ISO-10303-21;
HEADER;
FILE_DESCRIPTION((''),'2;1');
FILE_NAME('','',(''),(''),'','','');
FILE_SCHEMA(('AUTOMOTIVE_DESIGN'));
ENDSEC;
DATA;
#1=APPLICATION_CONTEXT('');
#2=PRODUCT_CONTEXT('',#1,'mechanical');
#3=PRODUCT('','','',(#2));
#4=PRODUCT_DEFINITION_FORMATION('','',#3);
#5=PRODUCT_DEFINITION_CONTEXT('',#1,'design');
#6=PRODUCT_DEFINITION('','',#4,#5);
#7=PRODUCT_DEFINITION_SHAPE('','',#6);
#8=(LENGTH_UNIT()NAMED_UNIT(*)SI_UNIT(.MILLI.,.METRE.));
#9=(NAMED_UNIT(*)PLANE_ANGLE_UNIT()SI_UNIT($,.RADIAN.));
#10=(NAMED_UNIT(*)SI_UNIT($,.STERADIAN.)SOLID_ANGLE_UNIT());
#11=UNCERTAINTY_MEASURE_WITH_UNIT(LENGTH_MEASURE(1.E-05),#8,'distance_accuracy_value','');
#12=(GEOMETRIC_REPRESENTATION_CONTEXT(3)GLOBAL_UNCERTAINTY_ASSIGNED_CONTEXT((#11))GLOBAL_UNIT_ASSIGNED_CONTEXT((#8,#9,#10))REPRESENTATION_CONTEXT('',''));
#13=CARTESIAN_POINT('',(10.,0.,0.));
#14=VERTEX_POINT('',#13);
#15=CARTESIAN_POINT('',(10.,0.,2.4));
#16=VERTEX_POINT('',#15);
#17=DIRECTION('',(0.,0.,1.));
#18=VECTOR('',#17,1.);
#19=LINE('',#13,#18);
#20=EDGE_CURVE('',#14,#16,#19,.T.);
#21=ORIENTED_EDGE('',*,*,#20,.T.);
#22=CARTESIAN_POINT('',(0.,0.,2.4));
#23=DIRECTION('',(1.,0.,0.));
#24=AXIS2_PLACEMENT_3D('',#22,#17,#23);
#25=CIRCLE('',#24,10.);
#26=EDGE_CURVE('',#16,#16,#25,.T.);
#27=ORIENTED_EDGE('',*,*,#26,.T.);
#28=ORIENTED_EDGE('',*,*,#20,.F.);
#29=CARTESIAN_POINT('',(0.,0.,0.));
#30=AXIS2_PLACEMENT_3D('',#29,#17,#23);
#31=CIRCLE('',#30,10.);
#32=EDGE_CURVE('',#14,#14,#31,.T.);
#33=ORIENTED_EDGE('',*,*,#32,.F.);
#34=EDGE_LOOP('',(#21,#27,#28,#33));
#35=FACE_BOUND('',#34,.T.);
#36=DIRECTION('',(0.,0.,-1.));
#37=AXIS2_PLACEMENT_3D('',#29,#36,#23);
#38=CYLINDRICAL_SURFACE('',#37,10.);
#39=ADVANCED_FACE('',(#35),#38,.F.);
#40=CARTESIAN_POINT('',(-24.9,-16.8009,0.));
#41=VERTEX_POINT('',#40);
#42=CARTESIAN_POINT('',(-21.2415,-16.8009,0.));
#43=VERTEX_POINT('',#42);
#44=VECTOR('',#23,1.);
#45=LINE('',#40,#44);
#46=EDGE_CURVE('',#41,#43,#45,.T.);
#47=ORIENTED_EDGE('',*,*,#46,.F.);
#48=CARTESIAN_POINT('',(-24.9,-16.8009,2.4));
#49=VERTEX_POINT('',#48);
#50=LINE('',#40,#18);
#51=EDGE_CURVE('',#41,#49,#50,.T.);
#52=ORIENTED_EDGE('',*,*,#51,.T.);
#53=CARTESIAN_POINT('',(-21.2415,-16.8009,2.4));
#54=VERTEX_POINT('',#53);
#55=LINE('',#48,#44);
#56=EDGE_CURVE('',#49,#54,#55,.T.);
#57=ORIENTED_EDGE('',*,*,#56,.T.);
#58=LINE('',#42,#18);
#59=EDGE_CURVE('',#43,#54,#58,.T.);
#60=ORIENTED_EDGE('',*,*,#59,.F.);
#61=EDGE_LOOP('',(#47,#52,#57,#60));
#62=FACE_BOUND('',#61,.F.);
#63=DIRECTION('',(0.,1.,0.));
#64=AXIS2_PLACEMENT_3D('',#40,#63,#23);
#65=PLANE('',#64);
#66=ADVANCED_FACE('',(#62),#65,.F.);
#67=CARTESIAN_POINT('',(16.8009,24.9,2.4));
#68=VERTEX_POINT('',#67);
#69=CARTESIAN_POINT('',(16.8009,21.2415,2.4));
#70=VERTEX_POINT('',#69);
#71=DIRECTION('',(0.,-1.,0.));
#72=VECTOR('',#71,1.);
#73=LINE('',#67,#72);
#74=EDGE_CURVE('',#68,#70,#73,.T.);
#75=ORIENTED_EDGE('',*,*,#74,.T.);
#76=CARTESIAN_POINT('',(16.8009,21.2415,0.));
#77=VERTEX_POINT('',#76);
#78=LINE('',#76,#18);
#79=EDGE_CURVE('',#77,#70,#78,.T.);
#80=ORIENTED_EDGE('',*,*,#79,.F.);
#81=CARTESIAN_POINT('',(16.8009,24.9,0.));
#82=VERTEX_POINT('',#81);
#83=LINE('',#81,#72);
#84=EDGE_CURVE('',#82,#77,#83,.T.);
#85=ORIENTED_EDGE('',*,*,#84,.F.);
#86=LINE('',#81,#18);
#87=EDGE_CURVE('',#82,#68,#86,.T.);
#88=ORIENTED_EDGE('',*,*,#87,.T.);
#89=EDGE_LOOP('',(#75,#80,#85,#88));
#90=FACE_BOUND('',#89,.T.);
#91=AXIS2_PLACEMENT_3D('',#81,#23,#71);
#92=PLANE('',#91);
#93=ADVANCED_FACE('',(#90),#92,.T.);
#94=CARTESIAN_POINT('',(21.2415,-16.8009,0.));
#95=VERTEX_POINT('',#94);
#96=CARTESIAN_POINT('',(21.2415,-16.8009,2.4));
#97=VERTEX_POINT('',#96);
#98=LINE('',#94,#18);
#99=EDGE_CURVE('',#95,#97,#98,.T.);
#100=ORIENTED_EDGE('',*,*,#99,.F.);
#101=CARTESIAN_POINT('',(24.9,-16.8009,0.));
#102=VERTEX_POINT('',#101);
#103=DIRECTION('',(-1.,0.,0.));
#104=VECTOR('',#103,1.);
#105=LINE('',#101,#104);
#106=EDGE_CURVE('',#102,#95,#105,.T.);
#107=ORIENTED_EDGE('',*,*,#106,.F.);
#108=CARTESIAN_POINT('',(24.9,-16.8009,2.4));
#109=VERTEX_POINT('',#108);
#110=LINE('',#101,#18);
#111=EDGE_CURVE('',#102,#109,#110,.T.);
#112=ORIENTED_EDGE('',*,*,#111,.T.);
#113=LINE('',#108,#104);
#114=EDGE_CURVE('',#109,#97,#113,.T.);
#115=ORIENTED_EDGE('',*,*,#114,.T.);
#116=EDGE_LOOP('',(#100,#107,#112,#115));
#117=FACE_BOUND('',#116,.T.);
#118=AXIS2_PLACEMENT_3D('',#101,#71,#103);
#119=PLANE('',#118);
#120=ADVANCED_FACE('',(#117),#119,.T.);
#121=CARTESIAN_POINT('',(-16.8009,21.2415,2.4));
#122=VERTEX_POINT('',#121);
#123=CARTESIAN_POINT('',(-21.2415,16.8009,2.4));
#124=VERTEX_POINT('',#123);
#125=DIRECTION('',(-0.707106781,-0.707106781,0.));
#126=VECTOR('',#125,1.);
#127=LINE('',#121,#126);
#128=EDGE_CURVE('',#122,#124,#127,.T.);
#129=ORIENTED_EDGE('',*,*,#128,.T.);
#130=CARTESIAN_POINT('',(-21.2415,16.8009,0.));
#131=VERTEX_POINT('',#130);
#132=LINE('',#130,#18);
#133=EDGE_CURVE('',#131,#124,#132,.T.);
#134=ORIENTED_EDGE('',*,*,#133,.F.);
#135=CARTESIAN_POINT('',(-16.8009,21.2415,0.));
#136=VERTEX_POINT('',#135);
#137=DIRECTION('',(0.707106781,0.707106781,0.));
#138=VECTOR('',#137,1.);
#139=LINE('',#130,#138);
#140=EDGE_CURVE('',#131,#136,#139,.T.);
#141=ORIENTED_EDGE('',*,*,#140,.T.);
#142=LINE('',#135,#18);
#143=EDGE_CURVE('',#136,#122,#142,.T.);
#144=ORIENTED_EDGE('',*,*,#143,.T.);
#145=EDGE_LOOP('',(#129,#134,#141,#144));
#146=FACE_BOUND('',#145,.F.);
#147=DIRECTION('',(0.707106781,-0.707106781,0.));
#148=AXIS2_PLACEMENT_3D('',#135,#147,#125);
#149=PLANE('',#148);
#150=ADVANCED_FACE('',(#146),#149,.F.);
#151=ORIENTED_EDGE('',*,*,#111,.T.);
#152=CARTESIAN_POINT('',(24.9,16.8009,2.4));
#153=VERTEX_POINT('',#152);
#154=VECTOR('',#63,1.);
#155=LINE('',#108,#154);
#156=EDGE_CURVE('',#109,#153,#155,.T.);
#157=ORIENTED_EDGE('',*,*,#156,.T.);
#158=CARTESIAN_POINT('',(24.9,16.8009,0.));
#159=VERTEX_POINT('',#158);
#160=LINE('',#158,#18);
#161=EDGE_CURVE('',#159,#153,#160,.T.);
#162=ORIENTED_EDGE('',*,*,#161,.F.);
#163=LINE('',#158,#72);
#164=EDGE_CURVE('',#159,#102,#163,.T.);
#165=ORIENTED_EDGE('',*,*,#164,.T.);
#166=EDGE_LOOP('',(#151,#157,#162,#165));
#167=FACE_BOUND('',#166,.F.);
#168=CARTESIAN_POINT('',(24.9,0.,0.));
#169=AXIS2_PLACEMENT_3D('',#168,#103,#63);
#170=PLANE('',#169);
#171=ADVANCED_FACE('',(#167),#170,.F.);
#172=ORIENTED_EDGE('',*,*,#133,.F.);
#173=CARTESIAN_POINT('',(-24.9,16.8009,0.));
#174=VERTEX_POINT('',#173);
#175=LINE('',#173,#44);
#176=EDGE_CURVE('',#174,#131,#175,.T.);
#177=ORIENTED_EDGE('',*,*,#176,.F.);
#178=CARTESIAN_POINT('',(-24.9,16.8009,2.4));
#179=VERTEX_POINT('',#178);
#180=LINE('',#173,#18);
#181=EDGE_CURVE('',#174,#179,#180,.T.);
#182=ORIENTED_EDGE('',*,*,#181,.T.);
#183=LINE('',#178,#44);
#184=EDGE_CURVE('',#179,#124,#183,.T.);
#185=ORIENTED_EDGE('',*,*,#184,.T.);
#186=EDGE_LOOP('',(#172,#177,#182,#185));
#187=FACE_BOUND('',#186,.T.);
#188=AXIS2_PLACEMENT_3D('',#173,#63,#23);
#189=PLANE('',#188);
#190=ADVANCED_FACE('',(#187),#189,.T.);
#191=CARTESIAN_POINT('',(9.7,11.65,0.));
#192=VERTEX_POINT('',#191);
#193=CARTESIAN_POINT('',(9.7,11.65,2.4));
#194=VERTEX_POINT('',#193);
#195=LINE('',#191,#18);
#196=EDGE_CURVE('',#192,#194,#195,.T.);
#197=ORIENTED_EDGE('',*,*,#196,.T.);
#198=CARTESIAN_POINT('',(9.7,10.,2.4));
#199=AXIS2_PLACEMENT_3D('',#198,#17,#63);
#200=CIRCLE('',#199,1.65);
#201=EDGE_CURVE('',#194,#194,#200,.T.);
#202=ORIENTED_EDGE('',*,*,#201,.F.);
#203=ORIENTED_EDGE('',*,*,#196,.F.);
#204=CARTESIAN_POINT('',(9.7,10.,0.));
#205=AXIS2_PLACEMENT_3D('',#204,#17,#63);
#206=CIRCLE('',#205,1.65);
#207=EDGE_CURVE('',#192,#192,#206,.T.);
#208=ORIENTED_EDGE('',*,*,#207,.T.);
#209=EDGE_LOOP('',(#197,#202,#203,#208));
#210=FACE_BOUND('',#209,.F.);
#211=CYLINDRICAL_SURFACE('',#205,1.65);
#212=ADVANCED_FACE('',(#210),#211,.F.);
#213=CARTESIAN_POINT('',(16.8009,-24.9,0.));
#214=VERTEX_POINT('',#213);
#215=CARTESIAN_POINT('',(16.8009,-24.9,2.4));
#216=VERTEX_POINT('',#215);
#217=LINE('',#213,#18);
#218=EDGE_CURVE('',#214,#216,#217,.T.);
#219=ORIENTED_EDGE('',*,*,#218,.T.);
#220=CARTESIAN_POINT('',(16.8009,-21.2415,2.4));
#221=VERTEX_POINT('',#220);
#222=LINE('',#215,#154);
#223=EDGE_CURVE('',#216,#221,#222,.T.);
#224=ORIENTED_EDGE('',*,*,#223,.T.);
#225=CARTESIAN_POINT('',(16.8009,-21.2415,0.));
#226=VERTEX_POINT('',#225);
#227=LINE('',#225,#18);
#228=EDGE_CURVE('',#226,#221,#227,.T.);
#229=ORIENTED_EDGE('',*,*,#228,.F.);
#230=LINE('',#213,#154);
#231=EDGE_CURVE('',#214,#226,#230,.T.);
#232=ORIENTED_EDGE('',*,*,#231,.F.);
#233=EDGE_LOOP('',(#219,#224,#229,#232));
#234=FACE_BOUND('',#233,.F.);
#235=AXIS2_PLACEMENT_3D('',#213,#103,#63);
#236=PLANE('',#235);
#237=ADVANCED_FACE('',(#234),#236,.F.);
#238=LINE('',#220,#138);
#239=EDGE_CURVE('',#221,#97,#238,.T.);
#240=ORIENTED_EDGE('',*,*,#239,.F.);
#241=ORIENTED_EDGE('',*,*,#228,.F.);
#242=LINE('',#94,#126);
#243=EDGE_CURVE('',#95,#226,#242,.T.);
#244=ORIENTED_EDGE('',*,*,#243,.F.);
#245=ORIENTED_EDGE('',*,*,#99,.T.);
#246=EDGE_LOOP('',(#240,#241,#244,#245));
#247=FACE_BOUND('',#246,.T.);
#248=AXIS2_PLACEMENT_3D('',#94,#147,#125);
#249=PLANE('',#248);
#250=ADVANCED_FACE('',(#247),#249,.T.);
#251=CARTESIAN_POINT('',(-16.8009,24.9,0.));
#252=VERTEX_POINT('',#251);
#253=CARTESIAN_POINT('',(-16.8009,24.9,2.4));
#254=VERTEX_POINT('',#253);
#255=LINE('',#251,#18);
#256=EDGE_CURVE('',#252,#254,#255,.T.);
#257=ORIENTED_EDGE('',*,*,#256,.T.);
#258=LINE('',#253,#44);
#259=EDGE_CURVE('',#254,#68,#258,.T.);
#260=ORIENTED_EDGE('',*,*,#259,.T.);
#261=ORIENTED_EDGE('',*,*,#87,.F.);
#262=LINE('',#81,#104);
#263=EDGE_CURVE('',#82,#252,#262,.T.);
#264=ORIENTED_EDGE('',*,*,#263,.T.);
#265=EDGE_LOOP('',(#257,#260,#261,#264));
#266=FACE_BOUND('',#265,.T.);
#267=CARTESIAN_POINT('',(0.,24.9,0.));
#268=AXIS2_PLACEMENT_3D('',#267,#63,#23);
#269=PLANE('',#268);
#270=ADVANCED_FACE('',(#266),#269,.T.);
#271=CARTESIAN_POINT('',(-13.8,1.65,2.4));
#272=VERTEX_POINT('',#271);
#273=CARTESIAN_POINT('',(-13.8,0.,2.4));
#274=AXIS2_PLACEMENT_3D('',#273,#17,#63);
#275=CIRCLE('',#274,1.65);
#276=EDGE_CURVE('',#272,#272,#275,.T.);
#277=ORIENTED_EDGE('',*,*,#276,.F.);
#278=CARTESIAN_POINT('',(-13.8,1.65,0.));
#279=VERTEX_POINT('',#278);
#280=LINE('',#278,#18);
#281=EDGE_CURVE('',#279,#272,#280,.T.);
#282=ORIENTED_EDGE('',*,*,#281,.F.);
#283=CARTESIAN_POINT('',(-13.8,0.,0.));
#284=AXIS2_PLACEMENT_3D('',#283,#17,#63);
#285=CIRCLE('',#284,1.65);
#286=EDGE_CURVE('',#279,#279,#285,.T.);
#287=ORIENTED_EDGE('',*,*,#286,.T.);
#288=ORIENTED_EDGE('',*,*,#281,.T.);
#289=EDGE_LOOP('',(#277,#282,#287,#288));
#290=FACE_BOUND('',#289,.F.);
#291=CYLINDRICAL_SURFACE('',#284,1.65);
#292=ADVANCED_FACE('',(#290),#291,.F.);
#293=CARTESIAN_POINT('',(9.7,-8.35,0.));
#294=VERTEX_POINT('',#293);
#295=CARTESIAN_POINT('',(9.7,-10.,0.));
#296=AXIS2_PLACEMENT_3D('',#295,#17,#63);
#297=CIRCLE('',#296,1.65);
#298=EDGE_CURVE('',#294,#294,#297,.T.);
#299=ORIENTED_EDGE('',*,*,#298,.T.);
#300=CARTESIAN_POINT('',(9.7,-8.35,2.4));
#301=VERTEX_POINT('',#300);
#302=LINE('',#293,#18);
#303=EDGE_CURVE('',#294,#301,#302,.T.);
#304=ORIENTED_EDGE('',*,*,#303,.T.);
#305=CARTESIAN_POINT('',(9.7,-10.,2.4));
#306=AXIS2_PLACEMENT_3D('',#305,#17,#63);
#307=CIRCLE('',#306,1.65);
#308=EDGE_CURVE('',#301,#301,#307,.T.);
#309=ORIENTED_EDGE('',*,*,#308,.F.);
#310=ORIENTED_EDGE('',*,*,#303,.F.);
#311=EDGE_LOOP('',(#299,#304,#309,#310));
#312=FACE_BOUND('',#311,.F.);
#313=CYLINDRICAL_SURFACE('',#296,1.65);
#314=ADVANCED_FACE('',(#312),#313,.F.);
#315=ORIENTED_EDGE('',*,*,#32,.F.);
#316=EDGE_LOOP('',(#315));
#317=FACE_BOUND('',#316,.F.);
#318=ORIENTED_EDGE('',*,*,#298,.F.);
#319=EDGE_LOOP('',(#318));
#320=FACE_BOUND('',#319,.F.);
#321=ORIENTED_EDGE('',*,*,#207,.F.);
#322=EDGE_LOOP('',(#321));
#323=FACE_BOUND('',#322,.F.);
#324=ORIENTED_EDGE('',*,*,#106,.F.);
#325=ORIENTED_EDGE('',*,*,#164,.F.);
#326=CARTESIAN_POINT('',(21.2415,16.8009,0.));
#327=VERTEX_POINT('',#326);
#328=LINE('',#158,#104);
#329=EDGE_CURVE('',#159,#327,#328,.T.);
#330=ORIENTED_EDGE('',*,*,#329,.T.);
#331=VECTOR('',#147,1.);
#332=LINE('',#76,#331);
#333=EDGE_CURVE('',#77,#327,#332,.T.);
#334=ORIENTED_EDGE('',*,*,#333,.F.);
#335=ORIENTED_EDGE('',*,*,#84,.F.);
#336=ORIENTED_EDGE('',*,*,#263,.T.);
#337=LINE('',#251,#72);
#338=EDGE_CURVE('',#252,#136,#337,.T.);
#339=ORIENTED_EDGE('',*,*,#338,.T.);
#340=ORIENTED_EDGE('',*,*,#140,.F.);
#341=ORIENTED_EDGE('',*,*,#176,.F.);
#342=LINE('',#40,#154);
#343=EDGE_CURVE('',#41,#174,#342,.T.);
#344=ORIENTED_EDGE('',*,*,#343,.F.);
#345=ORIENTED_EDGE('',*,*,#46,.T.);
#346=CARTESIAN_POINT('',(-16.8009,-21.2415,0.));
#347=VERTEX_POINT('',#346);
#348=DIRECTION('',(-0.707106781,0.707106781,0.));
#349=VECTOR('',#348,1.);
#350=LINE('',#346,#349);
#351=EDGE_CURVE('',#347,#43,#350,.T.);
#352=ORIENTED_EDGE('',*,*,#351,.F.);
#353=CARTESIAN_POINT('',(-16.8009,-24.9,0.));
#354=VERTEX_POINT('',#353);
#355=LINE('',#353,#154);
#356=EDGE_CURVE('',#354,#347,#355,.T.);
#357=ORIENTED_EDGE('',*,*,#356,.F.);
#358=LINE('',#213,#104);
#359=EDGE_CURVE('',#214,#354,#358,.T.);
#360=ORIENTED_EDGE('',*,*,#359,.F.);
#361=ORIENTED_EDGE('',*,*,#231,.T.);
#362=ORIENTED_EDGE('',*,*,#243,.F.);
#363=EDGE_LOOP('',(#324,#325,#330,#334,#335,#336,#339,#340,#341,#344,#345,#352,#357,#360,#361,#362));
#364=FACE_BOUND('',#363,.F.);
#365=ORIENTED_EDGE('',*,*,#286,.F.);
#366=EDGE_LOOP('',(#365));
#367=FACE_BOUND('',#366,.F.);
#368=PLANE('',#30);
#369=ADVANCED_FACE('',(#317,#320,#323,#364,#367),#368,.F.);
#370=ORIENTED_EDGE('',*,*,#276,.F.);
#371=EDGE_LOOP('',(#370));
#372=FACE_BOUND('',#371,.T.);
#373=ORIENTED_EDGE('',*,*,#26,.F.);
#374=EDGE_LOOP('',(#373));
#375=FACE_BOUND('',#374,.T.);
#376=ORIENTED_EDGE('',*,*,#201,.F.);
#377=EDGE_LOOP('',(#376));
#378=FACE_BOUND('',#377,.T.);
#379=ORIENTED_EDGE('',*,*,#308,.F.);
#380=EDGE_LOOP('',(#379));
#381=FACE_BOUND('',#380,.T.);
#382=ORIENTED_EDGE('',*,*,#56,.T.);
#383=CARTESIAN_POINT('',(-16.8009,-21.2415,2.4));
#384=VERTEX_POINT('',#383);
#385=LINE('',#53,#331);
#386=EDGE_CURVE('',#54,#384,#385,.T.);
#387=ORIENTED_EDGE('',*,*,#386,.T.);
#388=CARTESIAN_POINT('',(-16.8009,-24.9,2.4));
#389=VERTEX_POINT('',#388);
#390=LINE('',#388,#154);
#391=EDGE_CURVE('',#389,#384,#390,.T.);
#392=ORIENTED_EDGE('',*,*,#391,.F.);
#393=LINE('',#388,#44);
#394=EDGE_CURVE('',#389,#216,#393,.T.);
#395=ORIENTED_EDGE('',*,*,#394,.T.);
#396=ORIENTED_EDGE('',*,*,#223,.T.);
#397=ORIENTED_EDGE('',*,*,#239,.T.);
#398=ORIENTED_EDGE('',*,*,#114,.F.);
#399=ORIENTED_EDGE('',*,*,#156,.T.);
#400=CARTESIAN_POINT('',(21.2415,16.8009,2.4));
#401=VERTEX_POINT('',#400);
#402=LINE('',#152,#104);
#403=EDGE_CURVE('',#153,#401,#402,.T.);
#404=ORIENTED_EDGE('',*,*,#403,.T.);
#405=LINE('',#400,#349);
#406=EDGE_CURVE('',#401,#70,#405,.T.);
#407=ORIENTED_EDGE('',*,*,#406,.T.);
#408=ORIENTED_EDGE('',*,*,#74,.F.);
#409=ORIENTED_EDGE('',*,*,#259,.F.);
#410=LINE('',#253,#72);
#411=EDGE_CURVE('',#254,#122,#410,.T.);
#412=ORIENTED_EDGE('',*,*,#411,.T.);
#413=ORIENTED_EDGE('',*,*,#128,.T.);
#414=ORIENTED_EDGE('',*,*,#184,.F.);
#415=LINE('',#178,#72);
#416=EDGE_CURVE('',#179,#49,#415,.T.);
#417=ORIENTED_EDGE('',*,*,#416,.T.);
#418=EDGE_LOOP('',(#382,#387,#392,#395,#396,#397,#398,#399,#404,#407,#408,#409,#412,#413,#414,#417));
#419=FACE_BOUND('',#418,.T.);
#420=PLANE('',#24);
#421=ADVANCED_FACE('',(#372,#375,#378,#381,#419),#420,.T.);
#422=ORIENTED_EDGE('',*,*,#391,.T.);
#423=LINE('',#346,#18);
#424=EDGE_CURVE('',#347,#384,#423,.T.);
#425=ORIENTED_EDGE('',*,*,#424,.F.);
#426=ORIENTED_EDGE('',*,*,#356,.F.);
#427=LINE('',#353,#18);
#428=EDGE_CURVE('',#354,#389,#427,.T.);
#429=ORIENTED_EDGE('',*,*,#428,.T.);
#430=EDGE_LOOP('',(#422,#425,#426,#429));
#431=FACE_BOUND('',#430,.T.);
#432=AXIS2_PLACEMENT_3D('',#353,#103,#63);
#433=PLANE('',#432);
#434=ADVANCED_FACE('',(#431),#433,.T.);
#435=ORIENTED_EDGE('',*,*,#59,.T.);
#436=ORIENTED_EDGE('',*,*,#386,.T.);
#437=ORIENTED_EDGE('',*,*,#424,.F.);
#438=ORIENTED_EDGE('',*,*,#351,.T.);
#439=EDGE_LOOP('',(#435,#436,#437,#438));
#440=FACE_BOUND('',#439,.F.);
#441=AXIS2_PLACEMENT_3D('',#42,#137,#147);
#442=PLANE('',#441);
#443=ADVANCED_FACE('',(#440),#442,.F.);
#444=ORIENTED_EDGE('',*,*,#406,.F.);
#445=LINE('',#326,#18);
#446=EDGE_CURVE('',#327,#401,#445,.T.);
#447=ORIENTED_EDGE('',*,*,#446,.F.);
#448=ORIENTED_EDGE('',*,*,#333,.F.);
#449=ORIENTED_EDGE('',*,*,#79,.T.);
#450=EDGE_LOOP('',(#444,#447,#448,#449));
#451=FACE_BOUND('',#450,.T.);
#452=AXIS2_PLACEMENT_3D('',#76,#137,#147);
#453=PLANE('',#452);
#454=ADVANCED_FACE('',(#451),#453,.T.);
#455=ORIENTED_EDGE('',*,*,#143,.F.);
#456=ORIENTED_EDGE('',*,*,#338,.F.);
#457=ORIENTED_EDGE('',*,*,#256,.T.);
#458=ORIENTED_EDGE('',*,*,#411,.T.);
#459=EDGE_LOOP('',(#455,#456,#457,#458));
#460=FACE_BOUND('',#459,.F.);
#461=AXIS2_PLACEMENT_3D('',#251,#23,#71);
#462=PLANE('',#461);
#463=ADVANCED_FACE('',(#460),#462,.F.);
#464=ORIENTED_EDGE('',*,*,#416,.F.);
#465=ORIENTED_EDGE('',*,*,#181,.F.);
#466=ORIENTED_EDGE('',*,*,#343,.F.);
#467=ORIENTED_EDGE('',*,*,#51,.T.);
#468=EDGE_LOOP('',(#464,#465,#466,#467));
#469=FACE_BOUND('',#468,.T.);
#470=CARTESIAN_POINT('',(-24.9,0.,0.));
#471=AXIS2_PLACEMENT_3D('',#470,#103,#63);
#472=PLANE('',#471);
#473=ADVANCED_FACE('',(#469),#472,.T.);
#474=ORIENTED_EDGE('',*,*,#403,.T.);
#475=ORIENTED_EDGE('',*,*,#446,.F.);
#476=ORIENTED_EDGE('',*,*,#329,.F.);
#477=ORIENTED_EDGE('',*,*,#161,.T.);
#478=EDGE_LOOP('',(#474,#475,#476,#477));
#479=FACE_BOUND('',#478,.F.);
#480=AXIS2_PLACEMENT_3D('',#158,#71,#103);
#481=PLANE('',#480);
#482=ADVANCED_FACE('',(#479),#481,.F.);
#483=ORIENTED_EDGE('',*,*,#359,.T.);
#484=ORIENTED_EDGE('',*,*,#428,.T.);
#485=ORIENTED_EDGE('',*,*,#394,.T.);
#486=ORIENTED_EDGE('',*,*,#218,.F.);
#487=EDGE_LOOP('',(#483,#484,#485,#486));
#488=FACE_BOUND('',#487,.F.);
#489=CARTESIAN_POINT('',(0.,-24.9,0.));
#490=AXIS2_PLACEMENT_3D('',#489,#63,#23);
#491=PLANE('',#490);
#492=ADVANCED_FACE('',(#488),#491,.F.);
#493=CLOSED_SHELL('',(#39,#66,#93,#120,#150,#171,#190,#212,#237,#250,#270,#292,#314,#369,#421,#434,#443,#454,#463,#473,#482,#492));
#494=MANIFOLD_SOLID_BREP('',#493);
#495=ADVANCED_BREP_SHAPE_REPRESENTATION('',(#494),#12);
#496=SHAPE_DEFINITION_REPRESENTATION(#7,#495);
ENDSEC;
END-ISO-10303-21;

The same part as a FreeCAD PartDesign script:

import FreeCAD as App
import Part
import Sketcher


def add_polygon(sketch, points):
    """Adds a closed chain of lines whose ends are joined by coincident constraints."""
    first, n = sketch.GeometryCount, len(points)
    for a, b in zip(points, points[1:] + points[:1]):
        sketch.addGeometry(Part.LineSegment(App.Vector(*a, 0), App.Vector(*b, 0)), False)
    for i in range(n):
        sketch.addConstraint(Sketcher.Constraint("Coincident", first + i, 2, first + (i + 1) % n, 1))

doc = App.newDocument("Part")
body = doc.addObject("PartDesign::Body", "Body")

# Sketch on XY plane
sketch1 = doc.addObject("Sketcher::SketchObject", "Sketch")
body.addObject(sketch1)
sketch1.AttachmentSupport = (doc.XY_Plane, [""])
sketch1.MapMode = "FlatFace"
add_polygon(sketch1, [(16.8, 24.9), (-16.8, 24.9), (-16.8, 21.2), (-21.2, 16.8), (-24.9, 16.8), (-24.9, -16.8), (-21.2, -16.8), (-16.8, -21.2), (-16.8, -24.9), (16.8, -24.9), (16.8, -21.2), (21.2, -16.8), (24.9, -16.8), (24.9, 16.8), (21.2, 16.8), (16.8, 21.2)])  # lines 0-15
sketch1.addGeometry(Part.Circle(App.Vector(0, 0, 0), App.Vector(0, 0, 1), 10), False)  # 16
sketch1.addConstraint([
    Sketcher.Constraint("Horizontal", 0),
    Sketcher.Constraint("Vertical", 1),
    Sketcher.Constraint("Horizontal", 3),
    Sketcher.Constraint("Vertical", 4),
    Sketcher.Constraint("Horizontal", 5),
    Sketcher.Constraint("Vertical", 7),
    Sketcher.Constraint("Horizontal", 8),
    Sketcher.Constraint("Vertical", 9),
    Sketcher.Constraint("Horizontal", 11),
    Sketcher.Constraint("Vertical", 12),
    Sketcher.Constraint("Horizontal", 13),
    Sketcher.Constraint("Vertical", 15),
    Sketcher.Constraint("Coincident", 16, 3, -1, 1),
    Sketcher.Constraint("Symmetric", 0, 2, 8, 2, -1, 1),
    Sketcher.Constraint("Symmetric", 2, 2, 10, 2, -1, 1),
    Sketcher.Constraint("Symmetric", 4, 2, 12, 2, -1, 1),
    Sketcher.Constraint("Symmetric", 6, 2, 14, 2, -1, 1),
    Sketcher.Constraint("Symmetric", 6, 2, 9, 2, -2),
    Sketcher.Constraint("Symmetric", 5, 2, 10, 2, -2),
    Sketcher.Constraint("Perpendicular", 2, 6),
    Sketcher.Constraint("Perpendicular", 6, 10),
    Sketcher.Constraint("Perpendicular", 10, 14),
    Sketcher.Constraint("Equal", 13, 1),
    Sketcher.Constraint("Equal", 8, 4),
    Sketcher.Constraint("Diameter", 16, 20.0),
    Sketcher.Constraint("DistanceY", -1, 1, 0, 2, 24.9),
    Sketcher.Constraint("Distance", 2, 6.28),
    Sketcher.Constraint("DistanceX", 0, 2, 0, 1, 33.6018),
])
pad1 = doc.addObject("PartDesign::Pad", "Pad")
body.addObject(pad1)
pad1.Profile = sketch1
pad1.Length = 2.4

# Sketch on XY plane
sketch2 = doc.addObject("Sketcher::SketchObject", "Sketch001")
body.addObject(sketch2)
sketch2.AttachmentSupport = (doc.XY_Plane, [""])
sketch2.MapMode = "FlatFace"
sketch2.addGeometry([
    Part.Circle(App.Vector(9.7, 10, 0), App.Vector(0, 0, 1), 1.6),
    Part.Circle(App.Vector(-13.8, 0, 0), App.Vector(0, 0, 1), 1.6),
    Part.Circle(App.Vector(9.7, -10, 0), App.Vector(0, 0, 1), 1.6),
], False)
sketch2.addConstraint([
    Sketcher.Constraint("Equal", 0, 1),
    Sketcher.Constraint("Equal", 1, 2),
    Sketcher.Constraint("Symmetric", 0, 3, 2, 3, -1),
    Sketcher.Constraint("PointOnObject", 1, 3, -1),
    Sketcher.Constraint("Diameter", 0, 3.3),
    Sketcher.Constraint("DistanceY", -1, 1, 0, 3, 10.0),
    Sketcher.Constraint("DistanceX", -1, 1, 0, 3, 9.7),
    Sketcher.Constraint("DistanceX", 1, 3, -1, 1, 13.8),
])
doc.recompute()
hole = doc.addObject("PartDesign::Hole", "Hole")
body.addObject(hole)
hole.Profile = sketch2
hole.ThreadType = "None"
hole.Diameter = 3.3
hole.DepthType = "Dimension"
hole.Depth = 12
hole.DrillPoint = "Angled"
hole.DrillPointAngle = 118
hole.Reversed = True

doc.recompute()
